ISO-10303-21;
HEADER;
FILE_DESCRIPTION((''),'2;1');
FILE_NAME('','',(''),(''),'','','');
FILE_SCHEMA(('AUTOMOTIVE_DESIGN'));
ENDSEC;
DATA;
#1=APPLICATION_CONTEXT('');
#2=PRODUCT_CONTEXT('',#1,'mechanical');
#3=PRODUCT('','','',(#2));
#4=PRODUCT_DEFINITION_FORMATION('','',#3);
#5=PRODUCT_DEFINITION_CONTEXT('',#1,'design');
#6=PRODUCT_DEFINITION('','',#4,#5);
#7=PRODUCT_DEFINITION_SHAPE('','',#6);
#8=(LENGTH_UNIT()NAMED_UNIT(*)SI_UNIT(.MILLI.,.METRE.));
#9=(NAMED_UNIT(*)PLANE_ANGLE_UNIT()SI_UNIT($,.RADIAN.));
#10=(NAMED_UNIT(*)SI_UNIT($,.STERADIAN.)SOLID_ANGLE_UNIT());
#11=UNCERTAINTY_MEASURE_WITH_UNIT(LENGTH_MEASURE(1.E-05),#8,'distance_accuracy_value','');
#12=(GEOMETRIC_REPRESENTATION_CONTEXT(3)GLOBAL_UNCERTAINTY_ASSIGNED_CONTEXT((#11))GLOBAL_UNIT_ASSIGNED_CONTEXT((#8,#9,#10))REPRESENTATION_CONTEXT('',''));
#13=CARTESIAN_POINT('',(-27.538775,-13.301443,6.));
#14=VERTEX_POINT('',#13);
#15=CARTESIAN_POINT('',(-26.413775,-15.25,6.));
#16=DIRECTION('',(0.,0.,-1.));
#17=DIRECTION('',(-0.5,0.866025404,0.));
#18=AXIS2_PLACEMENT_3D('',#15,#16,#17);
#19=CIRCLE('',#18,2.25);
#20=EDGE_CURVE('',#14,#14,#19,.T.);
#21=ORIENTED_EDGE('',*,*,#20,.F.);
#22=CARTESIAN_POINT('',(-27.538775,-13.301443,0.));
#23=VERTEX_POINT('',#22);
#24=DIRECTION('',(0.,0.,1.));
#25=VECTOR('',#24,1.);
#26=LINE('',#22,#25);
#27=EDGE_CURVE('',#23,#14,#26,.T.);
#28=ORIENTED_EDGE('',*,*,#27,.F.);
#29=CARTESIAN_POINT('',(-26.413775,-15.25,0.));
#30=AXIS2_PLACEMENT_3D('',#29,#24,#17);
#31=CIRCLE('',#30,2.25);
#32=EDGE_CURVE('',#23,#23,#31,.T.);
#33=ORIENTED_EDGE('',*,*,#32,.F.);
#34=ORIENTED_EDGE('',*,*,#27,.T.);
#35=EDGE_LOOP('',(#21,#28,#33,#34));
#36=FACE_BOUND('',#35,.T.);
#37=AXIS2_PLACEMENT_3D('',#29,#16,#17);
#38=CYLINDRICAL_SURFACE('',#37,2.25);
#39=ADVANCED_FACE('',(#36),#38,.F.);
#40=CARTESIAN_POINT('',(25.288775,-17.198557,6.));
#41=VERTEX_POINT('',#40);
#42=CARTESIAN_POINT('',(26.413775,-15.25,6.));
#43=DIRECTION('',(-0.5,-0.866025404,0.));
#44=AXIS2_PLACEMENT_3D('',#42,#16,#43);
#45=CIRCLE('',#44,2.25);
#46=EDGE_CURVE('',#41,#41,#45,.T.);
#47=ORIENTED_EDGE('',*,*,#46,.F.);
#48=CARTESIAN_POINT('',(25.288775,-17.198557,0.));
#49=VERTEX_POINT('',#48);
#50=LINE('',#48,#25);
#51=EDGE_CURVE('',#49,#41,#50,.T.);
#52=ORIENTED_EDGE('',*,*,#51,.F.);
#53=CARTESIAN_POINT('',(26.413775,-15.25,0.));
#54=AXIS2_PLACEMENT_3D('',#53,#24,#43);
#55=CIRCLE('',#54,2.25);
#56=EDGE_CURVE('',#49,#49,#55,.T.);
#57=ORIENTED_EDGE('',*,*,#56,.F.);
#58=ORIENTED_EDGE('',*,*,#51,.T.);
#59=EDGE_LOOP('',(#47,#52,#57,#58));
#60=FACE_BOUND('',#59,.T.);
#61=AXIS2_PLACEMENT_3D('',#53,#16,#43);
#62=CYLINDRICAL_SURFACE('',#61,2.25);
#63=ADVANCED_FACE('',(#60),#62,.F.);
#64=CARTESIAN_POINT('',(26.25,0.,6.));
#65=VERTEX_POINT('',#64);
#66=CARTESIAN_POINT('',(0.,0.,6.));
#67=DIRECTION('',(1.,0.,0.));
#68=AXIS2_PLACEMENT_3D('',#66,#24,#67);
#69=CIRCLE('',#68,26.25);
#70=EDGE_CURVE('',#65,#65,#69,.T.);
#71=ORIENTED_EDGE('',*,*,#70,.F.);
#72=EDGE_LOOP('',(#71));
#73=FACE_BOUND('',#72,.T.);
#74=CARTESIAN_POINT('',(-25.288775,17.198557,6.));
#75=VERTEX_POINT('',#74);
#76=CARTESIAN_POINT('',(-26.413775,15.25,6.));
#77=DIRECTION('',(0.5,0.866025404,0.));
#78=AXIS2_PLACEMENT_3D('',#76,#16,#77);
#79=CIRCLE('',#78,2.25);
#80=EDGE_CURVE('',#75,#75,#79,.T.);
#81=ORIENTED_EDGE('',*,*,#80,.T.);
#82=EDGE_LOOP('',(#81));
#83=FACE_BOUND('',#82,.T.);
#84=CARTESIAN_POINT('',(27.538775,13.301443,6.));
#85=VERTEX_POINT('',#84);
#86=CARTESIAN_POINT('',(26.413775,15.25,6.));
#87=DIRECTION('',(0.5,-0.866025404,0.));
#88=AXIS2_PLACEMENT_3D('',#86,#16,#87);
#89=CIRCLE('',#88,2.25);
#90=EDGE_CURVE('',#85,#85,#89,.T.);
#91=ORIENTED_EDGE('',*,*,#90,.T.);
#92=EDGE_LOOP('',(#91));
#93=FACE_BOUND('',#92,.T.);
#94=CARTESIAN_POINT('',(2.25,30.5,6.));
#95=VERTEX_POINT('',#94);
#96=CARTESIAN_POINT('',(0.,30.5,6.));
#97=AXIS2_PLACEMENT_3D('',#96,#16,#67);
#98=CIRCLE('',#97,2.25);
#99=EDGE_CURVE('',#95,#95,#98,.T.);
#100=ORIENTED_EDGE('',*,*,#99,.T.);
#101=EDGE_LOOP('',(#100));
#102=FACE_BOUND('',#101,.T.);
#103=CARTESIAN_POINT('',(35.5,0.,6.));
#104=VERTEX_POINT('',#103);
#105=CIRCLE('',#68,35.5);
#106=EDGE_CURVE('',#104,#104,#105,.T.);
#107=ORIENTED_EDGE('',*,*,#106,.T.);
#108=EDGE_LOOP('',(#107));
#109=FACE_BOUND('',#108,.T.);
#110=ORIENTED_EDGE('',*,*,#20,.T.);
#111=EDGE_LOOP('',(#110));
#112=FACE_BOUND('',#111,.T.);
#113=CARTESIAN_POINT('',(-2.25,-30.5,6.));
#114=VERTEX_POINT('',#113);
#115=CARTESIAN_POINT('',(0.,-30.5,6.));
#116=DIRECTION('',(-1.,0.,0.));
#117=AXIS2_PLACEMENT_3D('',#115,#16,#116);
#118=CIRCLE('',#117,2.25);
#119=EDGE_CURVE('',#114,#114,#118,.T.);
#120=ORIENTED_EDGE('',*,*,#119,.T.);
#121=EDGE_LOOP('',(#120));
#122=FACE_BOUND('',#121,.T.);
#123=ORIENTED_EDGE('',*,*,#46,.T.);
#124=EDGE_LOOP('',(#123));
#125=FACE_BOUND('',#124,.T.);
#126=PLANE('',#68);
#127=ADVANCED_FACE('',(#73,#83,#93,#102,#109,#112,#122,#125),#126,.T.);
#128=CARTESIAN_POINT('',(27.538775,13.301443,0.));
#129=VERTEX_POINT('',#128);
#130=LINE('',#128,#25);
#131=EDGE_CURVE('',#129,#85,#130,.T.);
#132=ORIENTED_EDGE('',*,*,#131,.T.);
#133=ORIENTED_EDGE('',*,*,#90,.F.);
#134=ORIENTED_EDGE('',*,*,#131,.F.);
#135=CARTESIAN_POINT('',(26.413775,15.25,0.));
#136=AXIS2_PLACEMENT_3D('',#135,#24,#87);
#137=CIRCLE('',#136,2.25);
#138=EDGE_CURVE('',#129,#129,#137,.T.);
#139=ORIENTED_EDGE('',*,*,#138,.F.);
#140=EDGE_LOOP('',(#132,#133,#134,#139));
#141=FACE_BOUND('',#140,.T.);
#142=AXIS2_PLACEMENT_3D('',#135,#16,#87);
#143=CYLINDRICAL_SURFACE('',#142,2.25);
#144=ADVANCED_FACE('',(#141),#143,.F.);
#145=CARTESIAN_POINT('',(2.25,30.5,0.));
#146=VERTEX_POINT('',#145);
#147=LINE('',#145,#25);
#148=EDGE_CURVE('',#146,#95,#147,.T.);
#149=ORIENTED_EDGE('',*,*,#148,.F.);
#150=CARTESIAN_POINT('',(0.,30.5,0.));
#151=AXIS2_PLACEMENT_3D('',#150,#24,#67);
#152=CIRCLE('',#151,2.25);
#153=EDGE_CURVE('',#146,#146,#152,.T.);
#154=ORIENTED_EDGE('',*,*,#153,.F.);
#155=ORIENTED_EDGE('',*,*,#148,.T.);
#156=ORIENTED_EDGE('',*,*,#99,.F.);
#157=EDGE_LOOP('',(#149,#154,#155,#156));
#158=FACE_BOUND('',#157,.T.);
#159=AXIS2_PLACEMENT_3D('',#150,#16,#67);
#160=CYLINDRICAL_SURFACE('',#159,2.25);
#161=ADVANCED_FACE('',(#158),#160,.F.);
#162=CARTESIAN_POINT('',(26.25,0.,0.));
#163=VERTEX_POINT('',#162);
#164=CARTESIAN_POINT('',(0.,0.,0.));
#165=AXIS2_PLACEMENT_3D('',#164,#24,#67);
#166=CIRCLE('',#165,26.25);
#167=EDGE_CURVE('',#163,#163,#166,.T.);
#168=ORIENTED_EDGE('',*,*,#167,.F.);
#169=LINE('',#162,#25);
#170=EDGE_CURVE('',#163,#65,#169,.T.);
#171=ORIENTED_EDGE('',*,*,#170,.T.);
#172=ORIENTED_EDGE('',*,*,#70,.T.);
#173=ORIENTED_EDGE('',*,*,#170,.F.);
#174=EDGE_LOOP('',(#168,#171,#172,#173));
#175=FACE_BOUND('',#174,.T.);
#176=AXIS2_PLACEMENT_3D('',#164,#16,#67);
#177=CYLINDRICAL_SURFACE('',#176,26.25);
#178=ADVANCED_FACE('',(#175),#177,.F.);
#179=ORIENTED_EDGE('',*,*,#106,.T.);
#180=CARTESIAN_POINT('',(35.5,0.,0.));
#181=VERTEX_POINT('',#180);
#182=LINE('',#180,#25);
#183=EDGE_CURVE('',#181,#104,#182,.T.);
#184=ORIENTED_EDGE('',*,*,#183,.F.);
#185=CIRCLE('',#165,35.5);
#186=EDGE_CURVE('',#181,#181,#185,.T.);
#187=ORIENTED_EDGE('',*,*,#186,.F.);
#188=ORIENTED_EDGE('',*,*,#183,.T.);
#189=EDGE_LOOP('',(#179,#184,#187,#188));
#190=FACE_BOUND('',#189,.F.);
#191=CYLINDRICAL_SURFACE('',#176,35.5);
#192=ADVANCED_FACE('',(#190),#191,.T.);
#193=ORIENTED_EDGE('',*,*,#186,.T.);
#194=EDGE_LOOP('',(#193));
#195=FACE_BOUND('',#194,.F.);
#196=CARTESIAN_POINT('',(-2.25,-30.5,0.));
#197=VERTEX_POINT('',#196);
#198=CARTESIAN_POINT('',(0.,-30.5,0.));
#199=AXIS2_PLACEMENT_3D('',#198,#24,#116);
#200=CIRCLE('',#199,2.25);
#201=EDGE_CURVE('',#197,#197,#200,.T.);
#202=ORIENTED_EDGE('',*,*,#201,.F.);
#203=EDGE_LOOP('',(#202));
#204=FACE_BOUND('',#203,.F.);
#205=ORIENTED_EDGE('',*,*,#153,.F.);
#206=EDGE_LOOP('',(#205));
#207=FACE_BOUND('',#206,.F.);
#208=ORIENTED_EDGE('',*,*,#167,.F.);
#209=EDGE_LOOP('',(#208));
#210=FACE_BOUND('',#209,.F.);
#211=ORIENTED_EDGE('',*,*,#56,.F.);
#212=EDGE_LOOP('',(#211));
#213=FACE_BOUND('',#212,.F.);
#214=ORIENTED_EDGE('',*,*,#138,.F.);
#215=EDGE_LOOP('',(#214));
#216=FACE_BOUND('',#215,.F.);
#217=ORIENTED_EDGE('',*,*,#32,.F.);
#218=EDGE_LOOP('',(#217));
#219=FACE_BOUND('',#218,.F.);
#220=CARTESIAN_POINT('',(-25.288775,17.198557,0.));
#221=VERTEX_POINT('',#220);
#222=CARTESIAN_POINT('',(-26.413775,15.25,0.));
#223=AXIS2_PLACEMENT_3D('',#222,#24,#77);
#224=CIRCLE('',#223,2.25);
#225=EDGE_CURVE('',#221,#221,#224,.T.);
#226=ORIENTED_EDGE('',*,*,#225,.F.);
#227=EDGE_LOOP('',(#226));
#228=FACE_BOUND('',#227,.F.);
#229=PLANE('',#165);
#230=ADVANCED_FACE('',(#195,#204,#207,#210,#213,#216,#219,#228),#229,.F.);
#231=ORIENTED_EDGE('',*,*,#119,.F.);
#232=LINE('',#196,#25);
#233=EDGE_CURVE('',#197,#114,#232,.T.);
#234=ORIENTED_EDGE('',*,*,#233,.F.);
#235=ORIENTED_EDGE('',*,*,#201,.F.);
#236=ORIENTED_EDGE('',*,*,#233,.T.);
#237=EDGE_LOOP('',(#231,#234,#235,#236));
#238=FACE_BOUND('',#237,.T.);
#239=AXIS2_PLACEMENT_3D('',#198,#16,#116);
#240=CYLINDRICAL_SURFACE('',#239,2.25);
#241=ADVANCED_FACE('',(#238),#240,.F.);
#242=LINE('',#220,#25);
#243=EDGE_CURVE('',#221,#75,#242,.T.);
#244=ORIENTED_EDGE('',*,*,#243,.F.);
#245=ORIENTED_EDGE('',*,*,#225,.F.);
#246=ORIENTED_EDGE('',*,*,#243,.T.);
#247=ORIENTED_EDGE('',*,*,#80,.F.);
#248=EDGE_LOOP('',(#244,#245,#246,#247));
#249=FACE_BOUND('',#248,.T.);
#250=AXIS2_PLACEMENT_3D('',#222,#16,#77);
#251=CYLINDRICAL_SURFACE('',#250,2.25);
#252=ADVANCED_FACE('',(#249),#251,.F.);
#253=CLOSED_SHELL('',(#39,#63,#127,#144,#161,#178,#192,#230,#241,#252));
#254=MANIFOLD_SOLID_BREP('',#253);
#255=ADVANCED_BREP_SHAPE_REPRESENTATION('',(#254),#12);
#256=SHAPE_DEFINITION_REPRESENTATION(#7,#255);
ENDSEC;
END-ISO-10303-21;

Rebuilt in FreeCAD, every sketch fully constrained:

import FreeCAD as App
import Part
import Sketcher

V = App.Vector

doc = App.newDocument("Part")
body = doc.addObject("PartDesign::Body", "Body")

# Sketch on XY plane
sketch1 = body.newObject("Sketcher::SketchObject", "Sketch")
sketch1.AttachmentSupport = (doc.getObject("XY_Plane"), [""])
sketch1.MapMode = "FlatFace"
sketch1.addGeometry([
    Part.Circle(V(0, 0, 0), V(0, 0, 1), 36),
    Part.Circle(V(0, 0, 0), V(0, 0, 1), 26),
], False)
sketch1.addConstraint([
    Sketcher.Constraint("Coincident", 0, 3, -1, 1),
    Sketcher.Constraint("Coincident", 1, 3, -1, 1),
    Sketcher.Constraint("Diameter", 0, 71.0),
    Sketcher.Constraint("Diameter", 1, 52.5),
])
pad1 = body.newObject("PartDesign::Pad", "Pad")
pad1.Profile = sketch1
pad1.Length = 6

# Sketch on XY plane
sketch2 = body.newObject("Sketcher::SketchObject", "Sketch001")
sketch2.AttachmentSupport = (doc.getObject("XY_Plane"), [""])
sketch2.MapMode = "FlatFace"
sketch2.addGeometry(Part.Circle(V(0, 30.5, 0), V(0, 0, 1), 2.2), False)
sketch2.addConstraint([
    Sketcher.Constraint("PointOnObject", 0, 3, -2),
    Sketcher.Constraint("Diameter", 0, 4.5),
    Sketcher.Constraint("DistanceY", -1, 1, 0, 3, 30.5),
])
pocket1 = body.newObject("PartDesign::Pocket", "Pocket")
pocket1.Profile = sketch2
pocket1.Length = 10
pocket1.Reversed = True
doc.recompute()

polarpattern = body.newObject("PartDesign::PolarPattern", "PolarPattern")
polarpattern.Originals = [pocket1]
polarpattern.Axis = (doc.getObject("Z_Axis"), [""])
polarpattern.Angle = 360
polarpattern.Occurrences = 6
body.Tip = polarpattern

doc.recompute()
